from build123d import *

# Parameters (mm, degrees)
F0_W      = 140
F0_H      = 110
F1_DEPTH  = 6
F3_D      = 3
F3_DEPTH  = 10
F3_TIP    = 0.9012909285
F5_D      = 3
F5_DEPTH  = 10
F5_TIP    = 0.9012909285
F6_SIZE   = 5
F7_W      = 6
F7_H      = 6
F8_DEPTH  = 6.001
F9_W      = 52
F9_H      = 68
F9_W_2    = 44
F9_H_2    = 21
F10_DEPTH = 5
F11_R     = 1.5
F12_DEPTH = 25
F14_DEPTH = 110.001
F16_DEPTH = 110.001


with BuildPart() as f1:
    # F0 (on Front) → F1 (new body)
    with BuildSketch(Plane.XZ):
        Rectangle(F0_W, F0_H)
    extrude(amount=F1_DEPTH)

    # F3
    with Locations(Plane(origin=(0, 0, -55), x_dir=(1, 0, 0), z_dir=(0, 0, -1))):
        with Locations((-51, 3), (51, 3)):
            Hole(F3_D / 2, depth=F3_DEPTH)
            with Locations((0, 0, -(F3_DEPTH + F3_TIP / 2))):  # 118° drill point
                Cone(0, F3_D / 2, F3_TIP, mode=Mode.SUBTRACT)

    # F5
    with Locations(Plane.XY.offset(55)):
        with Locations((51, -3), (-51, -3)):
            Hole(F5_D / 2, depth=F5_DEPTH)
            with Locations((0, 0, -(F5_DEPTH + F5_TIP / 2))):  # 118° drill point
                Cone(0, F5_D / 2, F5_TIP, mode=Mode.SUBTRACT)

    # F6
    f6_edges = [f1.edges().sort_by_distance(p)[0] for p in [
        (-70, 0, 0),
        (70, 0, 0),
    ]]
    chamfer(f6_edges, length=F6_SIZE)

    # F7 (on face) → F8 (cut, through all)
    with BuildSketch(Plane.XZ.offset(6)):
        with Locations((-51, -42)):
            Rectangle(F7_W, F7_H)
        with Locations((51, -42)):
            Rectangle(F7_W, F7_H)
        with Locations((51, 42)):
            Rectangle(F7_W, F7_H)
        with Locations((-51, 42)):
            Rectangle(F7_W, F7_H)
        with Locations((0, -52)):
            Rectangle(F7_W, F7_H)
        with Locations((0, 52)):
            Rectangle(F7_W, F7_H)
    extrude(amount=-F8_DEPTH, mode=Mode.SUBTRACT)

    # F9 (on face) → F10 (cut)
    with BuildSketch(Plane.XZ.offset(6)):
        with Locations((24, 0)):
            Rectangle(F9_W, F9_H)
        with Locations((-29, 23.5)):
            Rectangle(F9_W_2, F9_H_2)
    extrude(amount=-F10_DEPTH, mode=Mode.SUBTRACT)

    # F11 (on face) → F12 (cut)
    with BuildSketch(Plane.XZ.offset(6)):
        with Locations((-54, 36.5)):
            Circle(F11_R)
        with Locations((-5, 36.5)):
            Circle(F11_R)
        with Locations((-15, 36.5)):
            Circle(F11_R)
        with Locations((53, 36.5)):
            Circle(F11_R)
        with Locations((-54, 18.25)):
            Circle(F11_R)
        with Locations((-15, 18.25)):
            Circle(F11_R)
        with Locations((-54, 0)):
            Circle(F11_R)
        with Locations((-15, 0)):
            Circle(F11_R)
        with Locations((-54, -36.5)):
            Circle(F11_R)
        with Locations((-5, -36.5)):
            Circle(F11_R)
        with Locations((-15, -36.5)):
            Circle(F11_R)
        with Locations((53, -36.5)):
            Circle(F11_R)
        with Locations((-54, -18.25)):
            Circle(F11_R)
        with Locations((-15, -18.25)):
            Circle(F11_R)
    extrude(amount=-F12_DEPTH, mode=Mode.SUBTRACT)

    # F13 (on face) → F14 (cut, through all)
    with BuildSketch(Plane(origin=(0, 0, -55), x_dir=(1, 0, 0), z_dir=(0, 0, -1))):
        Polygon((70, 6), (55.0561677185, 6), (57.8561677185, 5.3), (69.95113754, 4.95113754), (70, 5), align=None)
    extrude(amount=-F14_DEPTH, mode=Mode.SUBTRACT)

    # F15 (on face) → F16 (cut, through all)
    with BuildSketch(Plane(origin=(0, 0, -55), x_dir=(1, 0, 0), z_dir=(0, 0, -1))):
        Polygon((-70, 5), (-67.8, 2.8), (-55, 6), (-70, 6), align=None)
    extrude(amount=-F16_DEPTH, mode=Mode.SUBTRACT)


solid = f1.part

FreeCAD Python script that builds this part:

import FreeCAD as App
import Part
import Sketcher

V = App.Vector
Q = App.Units.Quantity


def edges_at(feature, points):
    """Names of the edges that pass closest to the given points."""
    edges = feature.Shape.Edges
    near = lambda p: min(range(len(edges)), key=lambda i: edges[i].distToShape(Part.Vertex(*p))[0])
    return sorted({f"Edge{near(p) + 1}" for p in points})


def add_polygon(sketch, points):
    """Adds a closed chain of lines whose ends are joined by coincident constraints."""
    first, n = sketch.GeometryCount, len(points)
    for a, b in zip(points, points[1:] + points[:1]):
        sketch.addGeometry(Part.LineSegment(App.Vector(*a, 0), App.Vector(*b, 0)), False)
    for i in range(n):
        sketch.addConstraint(Sketcher.Constraint("Coincident", first + i, 2, first + (i + 1) % n, 1))

doc = App.newDocument("Part")
body = doc.addObject("PartDesign::Body", "Body")

sketch1 = doc.addObject("Sketcher::SketchObject", "Sketch")
body.addObject(sketch1)
sketch1.AttachmentSupport = (doc.XZ_Plane, [""])
sketch1.MapMode = "FlatFace"
add_polygon(sketch1, [(-70, 55), (-70, -55), (70, -55), (70, 55)])
sketch1.addConstraint([
    Sketcher.Constraint("Vertical", 0),
    Sketcher.Constraint("Horizontal", 1),
    Sketcher.Constraint("Vertical", 2),
    Sketcher.Constraint("Horizontal", 3),
    Sketcher.Constraint("Symmetric", 0, 2, 2, 2, -1, 1),
    Sketcher.Constraint("DistanceX", 1, 1, 1, 2, 140.0),
    Sketcher.Constraint("DistanceY", 0, 2, 0, 1, 110.0),
])
pad1 = doc.addObject("PartDesign::Pad", "Pad")
body.addObject(pad1)
pad1.Profile = sketch1
pad1.Length = 6

sketch2 = doc.addObject("Sketcher::SketchObject", "Sketch001")
body.addObject(sketch2)
sketch2.AttachmentSupport = (doc.XY_Plane, [""])
sketch2.MapMode = "FlatFace"
sketch2.AttachmentOffset = App.Placement(V(0, 0, -55), App.Rotation())
sketch2.addGeometry([
    Part.Circle(V(-51, -3, 0), V(0, 0, 1), 1.5),
    Part.Circle(V(51, -3, 0), V(0, 0, 1), 1.5),
], False)
sketch2.addConstraint([
    Sketcher.Constraint("Equal", 0, 1),
    Sketcher.Constraint("Symmetric", 0, 3, 1, 3, -2),
    Sketcher.Constraint("Diameter", 0, 3.0),
    Sketcher.Constraint("DistanceX", 0, 3, -1, 1, 51.0),
    Sketcher.Constraint("DistanceY", 0, 3, -1, 1, 3.0),
])
doc.recompute()
hole = doc.addObject("PartDesign::Hole", "Hole")
body.addObject(hole)
hole.Profile = sketch2
hole.ThreadType = "None"
hole.Diameter = 3
hole.DepthType = "Dimension"
hole.Depth = 10
hole.DrillPoint = "Angled"
hole.DrillPointAngle = 118
hole.Reversed = True

sketch3 = doc.addObject("Sketcher::SketchObject", "Sketch002")
body.addObject(sketch3)
sketch3.AttachmentSupport = (doc.XY_Plane, [""])
sketch3.MapMode = "FlatFace"
sketch3.AttachmentOffset = App.Placement(V(0, 0, 55), App.Rotation())
sketch3.addGeometry([
    Part.Circle(V(51, -3, 0), V(0, 0, 1), 1.5),
    Part.Circle(V(-51, -3, 0), V(0, 0, 1), 1.5),
], False)
sketch3.addConstraint([
    Sketcher.Constraint("Equal", 0, 1),
    Sketcher.Constraint("Symmetric", 0, 3, 1, 3, -2),
    Sketcher.Constraint("Diameter", 0, 3.0),
    Sketcher.Constraint("DistanceX", -1, 1, 0, 3, 51.0),
    Sketcher.Constraint("DistanceY", 0, 3, -1, 1, 3.0),
])
doc.recompute()
hole2 = doc.addObject("PartDesign::Hole", "Hole001")
body.addObject(hole2)
hole2.Profile = sketch3
hole2.ThreadType = "None"
hole2.Diameter = 3
hole2.DepthType = "Dimension"
hole2.Depth = 10
hole2.DrillPoint = "Angled"
hole2.DrillPointAngle = 118
doc.recompute()

chamfer = doc.addObject("PartDesign::Chamfer", "Chamfer")
body.addObject(chamfer)
chamfer.Base = (hole2, edges_at(hole2, [(-70, 0, 0), (70, 0, 0)]))
chamfer.Size = 5

sketch4 = doc.addObject("Sketcher::SketchObject", "Sketch003")
body.addObject(sketch4)
sketch4.AttachmentSupport = (doc.XZ_Plane, [""])
sketch4.MapMode = "FlatFace"
sketch4.AttachmentOffset = App.Placement(V(0, 0, 6), App.Rotation())
add_polygon(sketch4, [(-54, -39), (-54, -45), (-48, -45), (-48, -39)])
add_polygon(sketch4, [(48, -39), (48, -45), (54, -45), (54, -39)])
add_polygon(sketch4, [(48, 45), (48, 39), (54, 39), (54, 45)])
add_polygon(sketch4, [(-54, 45), (-54, 39), (-48, 39), (-48, 45)])
add_polygon(sketch4, [(-3, -49), (-3, -55), (3, -55), (3, -49)])
add_polygon(sketch4, [(-3, 55), (-3, 49), (3, 49), (3, 55)])
sketch4.addConstraint([
    Sketcher.Constraint("Vertical", 0),
    Sketcher.Constraint("Horizontal", 1),
    Sketcher.Constraint("Vertical", 2),
    Sketcher.Constraint("Horizontal", 3),
    Sketcher.Constraint("Vertical", 4),
    Sketcher.Constraint("Horizontal", 5),
    Sketcher.Constraint("Vertical", 6),
    Sketcher.Constraint("Horizontal", 7),
    Sketcher.Constraint("Vertical", 8),
    Sketcher.Constraint("Horizontal", 9),
    Sketcher.Constraint("Vertical", 10),
    Sketcher.Constraint("Horizontal", 11),
    Sketcher.Constraint("Vertical", 12),
    Sketcher.Constraint("Horizontal", 13),
    Sketcher.Constraint("Vertical", 14),
    Sketcher.Constraint("Horizontal", 15),
    Sketcher.Constraint("Vertical", 16),
    Sketcher.Constraint("Horizontal", 17),
    Sketcher.Constraint("Vertical", 18),
    Sketcher.Constraint("Horizontal", 19),
    Sketcher.Constraint("Vertical", 20),
    Sketcher.Constraint("Horizontal", 21),
    Sketcher.Constraint("Vertical", 22),
    Sketcher.Constraint("Horizontal", 23),
    Sketcher.Constraint("Symmetric", 2, 2, 8, 2, -1, 1),
    Sketcher.Constraint("Symmetric", 0, 2, 10, 2, -1, 1),
    Sketcher.Constraint("Symmetric", 6, 2, 12, 2, -1, 1),
    Sketcher.Constraint("Symmetric", 4, 2, 14, 2, -1, 1),
    Sketcher.Constraint("Symmetric", 18, 2, 20, 2, -1, 1),
    Sketcher.Constraint("Symmetric", 16, 2, 22, 2, -1, 1),
    Sketcher.Constraint("Symmetric", 1, 2, 4, 2, -2),
    Sketcher.Constraint("Symmetric", 3, 2, 6, 2, -2),
    Sketcher.Constraint("Vertical", 19, 2, 20, 2),
    Sketcher.Constraint("Equal", 15, 17),
    Sketcher.Constraint("Equal", 23, 0),
    Sketcher.Constraint("Equal", 14, 16),
    Sketcher.Constraint("DistanceX", 1, 1, 1, 2, 6.0),
    Sketcher.Constraint("DistanceX", 0, 2, -1, 1, 54.0),
    Sketcher.Constraint("DistanceY", 0, 2, -1, 1, 45.0),
    Sketcher.Constraint("DistanceY", 16, 2, -1, 1, 55.0),
])
pocket1 = doc.addObject("PartDesign::Pocket", "Pocket")
body.addObject(pocket1)
pocket1.Profile = sketch4
pocket1.Type = "ThroughAll"

sketch5 = doc.addObject("Sketcher::SketchObject", "Sketch004")
body.addObject(sketch5)
sketch5.AttachmentSupport = (doc.XZ_Plane, [""])
sketch5.MapMode = "FlatFace"
sketch5.AttachmentOffset = App.Placement(V(0, 0, 6), App.Rotation())
add_polygon(sketch5, [(-2, 34), (-2, -34), (50, -34), (50, 34)])
add_polygon(sketch5, [(-51, 34), (-51, 13), (-7, 13), (-7, 34)])
sketch5.addConstraint([
    Sketcher.Constraint("Vertical", 0),
    Sketcher.Constraint("Horizontal", 1),
    Sketcher.Constraint("Vertical", 2),
    Sketcher.Constraint("Horizontal", 3),
    Sketcher.Constraint("Vertical", 4),
    Sketcher.Constraint("Horizontal", 5),
    Sketcher.Constraint("Vertical", 6),
    Sketcher.Constraint("Horizontal", 7),
    Sketcher.Constraint("Horizontal", 3, 2, 6, 2),
    Sketcher.Constraint("DistanceX", 1, 1, 1, 2, 52.0),
    Sketcher.Constraint("DistanceX", 5, 1, 5, 2, 44.0),
    Sketcher.Constraint("DistanceY", 0, 2, 0, 1, 68.0),
    Sketcher.Constraint("DistanceY", 4, 2, 4, 1, 21.0),
    Sketcher.Constraint("DistanceX", 0, 2, -1, 1, 2.0),
    Sketcher.Constraint("DistanceY", 0, 2, -1, 1, 34.0),
    Sketcher.Constraint("DistanceX", 4, 2, -1, 1, 51.0),
])
pocket2 = doc.addObject("PartDesign::Pocket", "Pocket001")
body.addObject(pocket2)
pocket2.Profile = sketch5
pocket2.Length = 5

sketch6 = doc.addObject("Sketcher::SketchObject", "Sketch005")
body.addObject(sketch6)
sketch6.AttachmentSupport = (doc.XZ_Plane, [""])
sketch6.MapMode = "FlatFace"
sketch6.AttachmentOffset = App.Placement(V(0, 0, 6), App.Rotation())
sketch6.addGeometry([
    Part.Circle(V(-54, 36.5, 0), V(0, 0, 1), 1.5),
    Part.Circle(V(-5, 36.5, 0), V(0, 0, 1), 1.5),
    Part.Circle(V(-15, 36.5, 0), V(0, 0, 1), 1.5),
    Part.Circle(V(53, 36.5, 0), V(0, 0, 1), 1.5),
    Part.Circle(V(-54, 18.2, 0), V(0, 0, 1), 1.5),
    Part.Circle(V(-15, 18.2, 0), V(0, 0, 1), 1.5),
    Part.Circle(V(-54, 0, 0), V(0, 0, 1), 1.5),
    Part.Circle(V(-15, 0, 0), V(0, 0, 1), 1.5),
    Part.Circle(V(-54, -36.5, 0), V(0, 0, 1), 1.5),
    Part.Circle(V(-5, -36.5, 0), V(0, 0, 1), 1.5),
    Part.Circle(V(-15, -36.5, 0), V(0, 0, 1), 1.5),
    Part.Circle(V(53, -36.5, 0), V(0, 0, 1), 1.5),
    Part.Circle(V(-54, -18.2, 0), V(0, 0, 1), 1.5),
    Part.Circle(V(-15, -18.2, 0), V(0, 0, 1), 1.5),
], False)
sketch6.addConstraint([
    Sketcher.Constraint("Equal", 0, 1),
    Sketcher.Constraint("Equal", 1, 2),
    Sketcher.Constraint("Equal", 2, 3),
    Sketcher.Constraint("Equal", 3, 4),
    Sketcher.Constraint("Equal", 4, 5),
    Sketcher.Constraint("Equal", 5, 6),
    Sketcher.Constraint("Equal", 6, 7),
    Sketcher.Constraint("Equal", 7, 8),
    Sketcher.Constraint("Equal", 8, 9),
    Sketcher.Constraint("Equal", 9, 10),
    Sketcher.Constraint("Equal", 10, 11),
    Sketcher.Constraint("Equal", 11, 12),
    Sketcher.Constraint("Equal", 12, 13),
    Sketcher.Constraint("Symmetric", 0, 3, 8, 3, -1),
    Sketcher.Constraint("Symmetric", 1, 3, 9, 3, -1),
    Sketcher.Constraint("Symmetric", 2, 3, 10, 3, -1),
    Sketcher.Constraint("Symmetric", 3, 3, 11, 3, -1),
    Sketcher.Constraint("Symmetric", 4, 3, 12, 3, -1),
    Sketcher.Constraint("Symmetric", 5, 3, 13, 3, -1),
    Sketcher.Constraint("PointOnObject", 6, 3, -1),
    Sketcher.Constraint("PointOnObject", 7, 3, -1),
    Sketcher.Constraint("Horizontal", 0, 3, 1, 3),
    Sketcher.Constraint("Horizontal", 1, 3, 2, 3),
    Sketcher.Constraint("Horizontal", 2, 3, 3, 3),
    Sketcher.Constraint("Horizontal", 4, 3, 5, 3),
    Sketcher.Constraint("Vertical", 0, 3, 4, 3),
    Sketcher.Constraint("Vertical", 2, 3, 5, 3),
    Sketcher.Constraint("Vertical", 4, 3, 6, 3),
    Sketcher.Constraint("Vertical", 5, 3, 7, 3),
    Sketcher.Constraint("Diameter", 0, 3.0),
    Sketcher.Constraint("DistanceX", 0, 3, -1, 1, 54.0),
    Sketcher.Constraint("DistanceX", 1, 3, -1, 1, 5.0),
    Sketcher.Constraint("DistanceX", 2, 3, -1, 1, 15.0),
    Sketcher.Constraint("DistanceX", -1, 1, 3, 3, 53.0),
    Sketcher.Constraint("DistanceY", 8, 3, 0, 3, 73.0),
    Sketcher.Constraint("DistanceY", 12, 3, 4, 3, 36.5),
])
pocket3 = doc.addObject("PartDesign::Pocket", "Pocket002")
body.addObject(pocket3)
pocket3.Profile = sketch6
pocket3.Length = 25

sketch7 = doc.addObject("Sketcher::SketchObject", "Sketch006")
body.addObject(sketch7)
sketch7.AttachmentSupport = (doc.XY_Plane, [""])
sketch7.MapMode = "FlatFace"
sketch7.AttachmentOffset = App.Placement(V(0, 0, -55), App.Rotation())
add_polygon(sketch7, [(70, -6), (55.06, -6), (57.86, -5.3), (69.95, -4.95), (70, -5)])
sketch7.addConstraint([
    Sketcher.Constraint("Horizontal", 0),
    Sketcher.Constraint("Vertical", 4),
    Sketcher.Constraint("DistanceY", 4, 2, 4, 1, 1.0),
    Sketcher.Constraint("Angle", 3, Q("-45 deg")),
    Sketcher.Constraint("DistanceY", 0, 2, -1, 1, 6.0),
    Sketcher.Constraint("DistanceX", -1, 1, 3, 2, 70.0),
    Sketcher.Constraint("Distance", 2, 12.1),
    Sketcher.Constraint("DistanceY", 1, 2, -1, 1, 5.3),
    Sketcher.Constraint("DistanceX", 0, 2, 1, 2, 2.8),
    Sketcher.Constraint("Distance", 3, 0.069102),
])
pocket4 = doc.addObject("PartDesign::Pocket", "Pocket003")
body.addObject(pocket4)
pocket4.Profile = sketch7
pocket4.Type = "ThroughAll"
pocket4.Reversed = True

sketch8 = doc.addObject("Sketcher::SketchObject", "Sketch007")
body.addObject(sketch8)
sketch8.AttachmentSupport = (doc.XY_Plane, [""])
sketch8.MapMode = "FlatFace"
sketch8.AttachmentOffset = App.Placement(V(0, 0, -55), App.Rotation())
add_polygon(sketch8, [(-70, -5), (-67.8, -2.8), (-55, -6), (-70, -6)])
sketch8.addConstraint([
    Sketcher.Constraint("Horizontal", 2),
    Sketcher.Constraint("Vertical", 3),
    Sketcher.Constraint("DistanceX", 2, 2, 2, 1, 15.0),
    Sketcher.Constraint("DistanceY", 3, 1, 3, 2, 1.0),
    Sketcher.Constraint("Angle", 0, Q("45 deg")),
    Sketcher.Constraint("DistanceX", 1, 2, -1, 1, 55.0),
    Sketcher.Constraint("DistanceY", 1, 2, -1, 1, 6.0),
    Sketcher.Constraint("DistanceX", 0, 2, -1, 1, 67.8),
])
pocket5 = doc.addObject("PartDesign::Pocket", "Pocket004")
body.addObject(pocket5)
pocket5.Profile = sketch8
pocket5.Type = "ThroughAll"
pocket5.Reversed = True

doc.recompute()
